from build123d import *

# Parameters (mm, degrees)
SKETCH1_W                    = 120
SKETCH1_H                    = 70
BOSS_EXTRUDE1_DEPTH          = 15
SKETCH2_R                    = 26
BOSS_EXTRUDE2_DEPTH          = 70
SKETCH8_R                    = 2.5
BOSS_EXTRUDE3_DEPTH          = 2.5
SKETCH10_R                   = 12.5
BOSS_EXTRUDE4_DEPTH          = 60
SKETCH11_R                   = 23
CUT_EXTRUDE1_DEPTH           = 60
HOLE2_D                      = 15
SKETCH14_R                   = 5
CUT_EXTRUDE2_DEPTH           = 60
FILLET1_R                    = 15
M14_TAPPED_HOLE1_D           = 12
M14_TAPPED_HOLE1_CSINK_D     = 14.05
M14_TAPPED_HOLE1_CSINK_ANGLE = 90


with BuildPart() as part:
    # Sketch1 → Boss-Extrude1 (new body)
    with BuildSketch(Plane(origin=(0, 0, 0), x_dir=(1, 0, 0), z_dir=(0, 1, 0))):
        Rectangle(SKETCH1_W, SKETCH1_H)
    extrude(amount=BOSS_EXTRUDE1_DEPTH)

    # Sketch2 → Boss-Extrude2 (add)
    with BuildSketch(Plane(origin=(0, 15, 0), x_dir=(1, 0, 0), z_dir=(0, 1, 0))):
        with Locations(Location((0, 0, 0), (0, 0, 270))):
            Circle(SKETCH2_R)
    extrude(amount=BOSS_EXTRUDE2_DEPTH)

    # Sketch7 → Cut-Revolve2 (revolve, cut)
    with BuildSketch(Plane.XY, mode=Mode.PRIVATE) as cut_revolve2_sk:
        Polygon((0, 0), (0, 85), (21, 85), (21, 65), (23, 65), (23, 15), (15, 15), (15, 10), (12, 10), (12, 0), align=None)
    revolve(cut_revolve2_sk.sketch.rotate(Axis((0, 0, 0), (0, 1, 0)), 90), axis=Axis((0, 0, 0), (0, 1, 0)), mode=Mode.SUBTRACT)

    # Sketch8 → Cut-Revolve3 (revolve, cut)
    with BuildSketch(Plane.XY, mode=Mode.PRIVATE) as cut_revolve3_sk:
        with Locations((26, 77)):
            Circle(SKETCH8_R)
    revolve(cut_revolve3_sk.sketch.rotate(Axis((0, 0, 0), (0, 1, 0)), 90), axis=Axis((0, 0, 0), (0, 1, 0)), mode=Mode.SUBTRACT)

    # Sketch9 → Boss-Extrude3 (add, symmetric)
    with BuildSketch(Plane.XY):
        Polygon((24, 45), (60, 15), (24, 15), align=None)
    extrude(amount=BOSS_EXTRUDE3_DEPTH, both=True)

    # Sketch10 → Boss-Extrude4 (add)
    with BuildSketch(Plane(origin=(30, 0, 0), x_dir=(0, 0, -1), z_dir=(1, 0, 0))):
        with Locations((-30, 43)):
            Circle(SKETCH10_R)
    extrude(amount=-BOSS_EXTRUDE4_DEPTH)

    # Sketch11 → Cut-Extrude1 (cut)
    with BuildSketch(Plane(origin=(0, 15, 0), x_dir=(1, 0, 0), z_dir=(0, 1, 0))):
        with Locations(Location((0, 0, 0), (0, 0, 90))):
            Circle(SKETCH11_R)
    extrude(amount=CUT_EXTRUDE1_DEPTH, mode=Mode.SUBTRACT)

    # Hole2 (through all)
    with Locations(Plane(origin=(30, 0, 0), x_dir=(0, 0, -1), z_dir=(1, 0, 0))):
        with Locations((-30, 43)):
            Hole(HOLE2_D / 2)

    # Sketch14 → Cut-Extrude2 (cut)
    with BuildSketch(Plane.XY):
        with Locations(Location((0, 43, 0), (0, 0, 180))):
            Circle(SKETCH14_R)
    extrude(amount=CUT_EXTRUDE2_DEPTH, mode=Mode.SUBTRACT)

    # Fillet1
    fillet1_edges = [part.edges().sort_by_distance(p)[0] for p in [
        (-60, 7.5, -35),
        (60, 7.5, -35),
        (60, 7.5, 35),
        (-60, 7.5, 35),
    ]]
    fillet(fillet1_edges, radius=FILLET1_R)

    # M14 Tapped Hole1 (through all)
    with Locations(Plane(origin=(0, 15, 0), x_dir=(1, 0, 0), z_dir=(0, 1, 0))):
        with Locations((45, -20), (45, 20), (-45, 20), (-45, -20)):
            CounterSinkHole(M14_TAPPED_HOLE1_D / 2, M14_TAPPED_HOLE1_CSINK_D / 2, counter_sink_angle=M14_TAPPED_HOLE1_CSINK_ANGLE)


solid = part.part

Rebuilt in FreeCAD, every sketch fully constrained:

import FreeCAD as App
import Part
import Sketcher

V = App.Vector
Q = App.Units.Quantity


def edges_at(feature, points):
    """Names of the edges that pass closest to the given points."""
    edges = feature.Shape.Edges
    near = lambda p: min(range(len(edges)), key=lambda i: edges[i].distToShape(Part.Vertex(*p))[0])
    return sorted({f"Edge{near(p) + 1}" for p in points})


def add_polygon(sketch, points):
    """Adds a closed chain of lines whose ends are joined by coincident constraints."""
    first, n = sketch.GeometryCount, len(points)
    for a, b in zip(points, points[1:] + points[:1]):
        sketch.addGeometry(Part.LineSegment(App.Vector(*a, 0), App.Vector(*b, 0)), False)
    for i in range(n):
        sketch.addConstraint(Sketcher.Constraint("Coincident", first + i, 2, first + (i + 1) % n, 1))

doc = App.newDocument("Part")
body = doc.addObject("PartDesign::Body", "Body")

# Sketch on XZ plane
sketch1 = doc.addObject("Sketcher::SketchObject", "Sketch")
body.addObject(sketch1)
sketch1.AttachmentSupport = (doc.XZ_Plane, [""])
sketch1.MapMode = "FlatFace"
add_polygon(sketch1, [(-60, -35), (-60, 35), (60, 35), (60, -35)])  # lines 0-3
sketch1.addConstraint([
    Sketcher.Constraint("Vertical", 0),
    Sketcher.Constraint("Horizontal", 1),
    Sketcher.Constraint("Vertical", 2),
    Sketcher.Constraint("Horizontal", 3),
    Sketcher.Constraint("Symmetric", 0, 2, 2, 2, -1, 1),
    Sketcher.Constraint("DistanceX", 1, 1, 1, 2, Q("120 mm")),
    Sketcher.Constraint("DistanceY", 0, 1, 0, 2, Q("70 mm")),
])
pad1 = doc.addObject("PartDesign::Pad", "Pad")
body.addObject(pad1)
pad1.Profile = sketch1
pad1.Length = 15
pad1.Reversed = True

# Sketch on XZ plane
sketch2 = doc.addObject("Sketcher::SketchObject", "Sketch001")
body.addObject(sketch2)
sketch2.AttachmentSupport = (doc.XZ_Plane, [""])
sketch2.MapMode = "FlatFace"
sketch2.AttachmentOffset = App.Placement(V(0, 0, -15), App.Rotation())
sketch2.addGeometry(Part.Circle(V(0, 0, 0), V(0, 0, 1), 26), False)
sketch2.addConstraint([
    Sketcher.Constraint("Coincident", 0, 3, -1, 1),
    Sketcher.Constraint("Diameter", 0, Q("52 mm")),
])
pad2 = doc.addObject("PartDesign::Pad", "Pad001")
body.addObject(pad2)
pad2.Profile = sketch2
pad2.Length = 70
pad2.Reversed = True

# Sketch on XY plane
sketch3 = doc.addObject("Sketcher::SketchObject", "Sketch002")
body.addObject(sketch3)
sketch3.AttachmentSupport = (doc.XY_Plane, [""])
sketch3.MapMode = "FlatFace"
add_polygon(sketch3, [(0, 85), (0, 0), (12, 0), (12, 10), (15, 10), (15, 15), (23, 15), (23, 65), (21, 65), (21, 85)])  # lines 0-9
sketch3.addConstraint([
    Sketcher.Constraint("Vertical", 0),
    Sketcher.Constraint("Horizontal", 1),
    Sketcher.Constraint("Vertical", 2),
    Sketcher.Constraint("Horizontal", 3),
    Sketcher.Constraint("Vertical", 4),
    Sketcher.Constraint("Horizontal", 5),
    Sketcher.Constraint("Vertical", 6),
    Sketcher.Constraint("Horizontal", 7),
    Sketcher.Constraint("Vertical", 8),
    Sketcher.Constraint("Horizontal", 9),
    Sketcher.Constraint("Coincident", 0, 2, -1, 1),
    Sketcher.Constraint("DistanceX", 1, 1, 1, 2, Q("12 mm")),
    Sketcher.Constraint("DistanceX", 3, 1, 3, 2, Q("3 mm")),
    Sketcher.Constraint("DistanceX", 5, 1, 5, 2, Q("8 mm")),
    Sketcher.Constraint("DistanceX", 7, 2, 7, 1, Q("2 mm")),
    Sketcher.Constraint("DistanceY", 0, 2, 0, 1, Q("85 mm")),
    Sketcher.Constraint("DistanceY", 2, 1, 2, 2, Q("10 mm")),
    Sketcher.Constraint("DistanceY", 4, 1, 4, 2, Q("5 mm")),
    Sketcher.Constraint("DistanceY", 6, 1, 6, 2, Q("50 mm")),
])
groove = doc.addObject("PartDesign::Groove", "Groove")
body.addObject(groove)
groove.Profile = sketch3
groove.ReferenceAxis = (sketch3, ["V_Axis"])
groove.Angle = 360

# Sketch on XY plane
sketch4 = doc.addObject("Sketcher::SketchObject", "Sketch003")
body.addObject(sketch4)
sketch4.AttachmentSupport = (doc.XY_Plane, [""])
sketch4.MapMode = "FlatFace"
sketch4.addGeometry(Part.Circle(V(26, 77, 0), V(0, 0, 1), 2.5), False)
sketch4.addConstraint([
    Sketcher.Constraint("Diameter", 0, Q("5 mm")),
    Sketcher.Constraint("DistanceX", -1, 1, 0, 3, Q("26 mm")),
    Sketcher.Constraint("DistanceY", -1, 1, 0, 3, Q("77 mm")),
])
groove2 = doc.addObject("PartDesign::Groove", "Groove001")
body.addObject(groove2)
groove2.Profile = sketch4
groove2.ReferenceAxis = (sketch4, ["V_Axis"])
groove2.Angle = 360

# Sketch on XY plane
sketch5 = doc.addObject("Sketcher::SketchObject", "Sketch004")
body.addObject(sketch5)
sketch5.AttachmentSupport = (doc.XY_Plane, [""])
sketch5.MapMode = "FlatFace"
add_polygon(sketch5, [(60, 15), (24, 45), (24, 15)])  # lines 0-2
sketch5.addConstraint([
    Sketcher.Constraint("Vertical", 1),
    Sketcher.Constraint("Horizontal", 2),
    Sketcher.Constraint("DistanceX", 2, 1, 2, 2, Q("36 mm")),
    Sketcher.Constraint("DistanceY", 1, 2, 1, 1, Q("30 mm")),
    Sketcher.Constraint("DistanceX", -1, 1, 0, 2, Q("24 mm")),
    Sketcher.Constraint("DistanceY", -1, 1, 0, 2, Q("45 mm")),
])
pad3 = doc.addObject("PartDesign::Pad", "Pad002")
body.addObject(pad3)
pad3.Profile = sketch5
pad3.Length = 5
pad3.Midplane = True

# Sketch on YZ plane
sketch6 = doc.addObject("Sketcher::SketchObject", "Sketch005")
body.addObject(sketch6)
sketch6.AttachmentSupport = (doc.YZ_Plane, [""])
sketch6.MapMode = "FlatFace"
sketch6.AttachmentOffset = App.Placement(V(0, 0, 30), App.Rotation())
sketch6.addGeometry(Part.Circle(V(43, 30, 0), V(0, 0, 1), 12), False)
sketch6.addConstraint([
    Sketcher.Constraint("Diameter", 0, Q("25 mm")),
    Sketcher.Constraint("DistanceX", -1, 1, 0, 3, Q("43 mm")),
    Sketcher.Constraint("DistanceY", -1, 1, 0, 3, Q("30 mm")),
])
pad4 = doc.addObject("PartDesign::Pad", "Pad003")
body.addObject(pad4)
pad4.Profile = sketch6
pad4.Length = 60
pad4.Reversed = True

# Sketch on XZ plane
sketch7 = doc.addObject("Sketcher::SketchObject", "Sketch006")
body.addObject(sketch7)
sketch7.AttachmentSupport = (doc.XZ_Plane, [""])
sketch7.MapMode = "FlatFace"
sketch7.AttachmentOffset = App.Placement(V(0, 0, -15), App.Rotation())
sketch7.addGeometry(Part.Circle(V(0, 0, 0), V(0, 0, 1), 23), False)
sketch7.addConstraint([
    Sketcher.Constraint("Coincident", 0, 3, -1, 1),
    Sketcher.Constraint("Diameter", 0, Q("46 mm")),
])
pocket1 = doc.addObject("PartDesign::Pocket", "Pocket")
body.addObject(pocket1)
pocket1.Profile = sketch7
pocket1.Length = 60

# Sketch on YZ plane
sketch8 = doc.addObject("Sketcher::SketchObject", "Sketch007")
body.addObject(sketch8)
sketch8.AttachmentSupport = (doc.YZ_Plane, [""])
sketch8.MapMode = "FlatFace"
sketch8.AttachmentOffset = App.Placement(V(0, 0, 30), App.Rotation())
sketch8.addGeometry(Part.Circle(V(43, 30, 0), V(0, 0, 1), 8), False)
sketch8.addConstraint([
    Sketcher.Constraint("Diameter", 0, Q("15 mm")),
    Sketcher.Constraint("DistanceX", -1, 1, 0, 3, Q("43 mm")),
    Sketcher.Constraint("DistanceY", -1, 1, 0, 3, Q("30 mm")),
])
doc.recompute()
hole = doc.addObject("PartDesign::Hole", "Hole")
body.addObject(hole)
hole.Profile = sketch8
hole.ThreadType = "None"
hole.Diameter = 15
hole.DepthType = "ThroughAll"

# Sketch on XY plane
sketch9 = doc.addObject("Sketcher::SketchObject", "Sketch008")
body.addObject(sketch9)
sketch9.AttachmentSupport = (doc.XY_Plane, [""])
sketch9.MapMode = "FlatFace"
sketch9.addGeometry(Part.Circle(V(0, 43, 0), V(0, 0, 1), 5), False)
sketch9.addConstraint([
    Sketcher.Constraint("PointOnObject", 0, 3, -2),
    Sketcher.Constraint("Diameter", 0, Q("10 mm")),
    Sketcher.Constraint("DistanceY", -1, 1, 0, 3, Q("43 mm")),
])
pocket2 = doc.addObject("PartDesign::Pocket", "Pocket001")
body.addObject(pocket2)
pocket2.Profile = sketch9
pocket2.Length = 60
pocket2.Reversed = True
doc.recompute()

fillet = doc.addObject("PartDesign::Fillet", "Fillet")
body.addObject(fillet)
fillet.Base = (pocket2, edges_at(pocket2, [
    (-60, 7.5, -35),
    (60, 7.5, -35),
    (60, 7.5, 35),
    (-60, 7.5, 35),
]))
fillet.Radius = 15

# Sketch on XZ plane
sketch10 = doc.addObject("Sketcher::SketchObject", "Sketch009")
body.addObject(sketch10)
sketch10.AttachmentSupport = (doc.XZ_Plane, [""])
sketch10.MapMode = "FlatFace"
sketch10.AttachmentOffset = App.Placement(V(0, 0, -15), App.Rotation())
sketch10.addGeometry([
    Part.Circle(V(45, 20, 0), V(0, 0, 1), 6),
    Part.Circle(V(45, -20, 0), V(0, 0, 1), 6),
    Part.Circle(V(-45, -20, 0), V(0, 0, 1), 6),
    Part.Circle(V(-45, 20, 0), V(0, 0, 1), 6),
], False)
sketch10.addConstraint([
    Sketcher.Constraint("Equal", 0, 1),
    Sketcher.Constraint("Equal", 1, 2),
    Sketcher.Constraint("Equal", 2, 3),
    Sketcher.Constraint("Symmetric", 0, 3, 2, 3, -1, 1),
    Sketcher.Constraint("Symmetric", 1, 3, 3, 3, -1, 1),
    Sketcher.Constraint("Symmetric", 1, 3, 2, 3, -2),
    Sketcher.Constraint("Diameter", 0, Q("12 mm")),
    Sketcher.Constraint("DistanceX", -1, 1, 0, 3, Q("45 mm")),
    Sketcher.Constraint("DistanceY", -1, 1, 0, 3, Q("20 mm")),
])
doc.recompute()
hole2 = doc.addObject("PartDesign::Hole", "Hole001")
body.addObject(hole2)
hole2.Profile = sketch10
hole2.ThreadType = "None"
hole2.Diameter = 12
hole2.DepthType = "ThroughAll"
hole2.HoleCutType = "Countersink"
hole2.HoleCutDiameter = 14.05
hole2.HoleCutCountersinkAngle = 90
hole2.Reversed = True

doc.recompute()
